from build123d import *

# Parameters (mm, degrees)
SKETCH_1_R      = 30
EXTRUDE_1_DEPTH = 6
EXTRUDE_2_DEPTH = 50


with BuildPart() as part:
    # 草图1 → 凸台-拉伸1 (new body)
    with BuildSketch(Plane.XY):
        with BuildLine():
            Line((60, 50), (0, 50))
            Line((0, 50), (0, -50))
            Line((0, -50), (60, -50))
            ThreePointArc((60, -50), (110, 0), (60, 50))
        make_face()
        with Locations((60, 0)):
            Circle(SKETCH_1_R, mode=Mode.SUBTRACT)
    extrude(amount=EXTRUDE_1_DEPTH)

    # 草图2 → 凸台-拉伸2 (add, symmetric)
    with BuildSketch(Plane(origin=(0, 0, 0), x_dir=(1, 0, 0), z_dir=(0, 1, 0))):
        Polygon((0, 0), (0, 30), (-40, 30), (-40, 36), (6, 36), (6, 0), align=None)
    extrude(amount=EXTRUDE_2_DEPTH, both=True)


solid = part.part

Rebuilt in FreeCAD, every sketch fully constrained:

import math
import FreeCAD as App
import Part
import Sketcher

V = App.Vector

doc = App.newDocument("Part")
body = doc.addObject("PartDesign::Body", "Body")

# Sketch on XY plane
sketch1 = body.newObject("Sketcher::SketchObject", "Sketch")
sketch1.AttachmentSupport = (doc.getObject("XY_Plane"), [""])
sketch1.MapMode = "FlatFace"
sketch1.addGeometry([
    Part.LineSegment(V(60, 50, 0), V(0, 50, 0)),  # 0
    Part.LineSegment(V(0, 50, 0), V(0, -50, 0)),  # 1
    Part.LineSegment(V(0, -50, 0), V(60, -50, 0)),  # 2
    Part.ArcOfCircle(Part.Circle(V(60, 0, 0), V(0, 0, 1), 50), math.radians(-90), math.radians(90)),  # 3
    Part.Circle(V(60, 0, 0), V(0, 0, 1), 30),  # 4
], False)
sketch1.addConstraint([
    Sketcher.Constraint("Coincident", 0, 2, 1, 1),
    Sketcher.Constraint("Coincident", 1, 2, 2, 1),
    Sketcher.Constraint("Tangent", 2, 2, 3, 1),
    Sketcher.Constraint("Tangent", 3, 2, 0, 1),
    Sketcher.Constraint("Horizontal", 0),
    Sketcher.Constraint("Vertical", 1),
    Sketcher.Constraint("Horizontal", 2),
    Sketcher.Constraint("Coincident", 4, 3, 3, 3),
    Sketcher.Constraint("Symmetric", 0, 2, 1, 2, -1, 1),
    Sketcher.Constraint("Diameter", 4, 60.0),
    Sketcher.Constraint("Radius", 3, 50.0),
    Sketcher.Constraint("DistanceX", 0, 2, 0, 1, 60.0),
])
pad1 = body.newObject("PartDesign::Pad", "Pad")
pad1.Profile = sketch1
pad1.Length = 6

# Sketch on XZ plane
sketch2 = body.newObject("Sketcher::SketchObject", "Sketch001")
sketch2.AttachmentSupport = (doc.getObject("XZ_Plane"), [""])
sketch2.MapMode = "FlatFace"
sketch2.addGeometry([
    Part.LineSegment(V(0, -30, 0), V(0, 0, 0)),  # 0
    Part.LineSegment(V(0, 0, 0), V(6, 0, 0)),  # 1
    Part.LineSegment(V(6, 0, 0), V(6, -36, 0)),  # 2
    Part.LineSegment(V(6, -36, 0), V(-40, -36, 0)),  # 3
    Part.LineSegment(V(-40, -36, 0), V(-40, -30, 0)),  # 4
    Part.LineSegment(V(-40, -30, 0), V(0, -30, 0)),  # 5
], False)
sketch2.addConstraint([
    Sketcher.Constraint("Coincident", 0, 2, 1, 1),
    Sketcher.Constraint("Coincident", 1, 2, 2, 1),
    Sketcher.Constraint("Coincident", 2, 2, 3, 1),
    Sketcher.Constraint("Coincident", 3, 2, 4, 1),
    Sketcher.Constraint("Coincident", 4, 2, 5, 1),
    Sketcher.Constraint("Coincident", 5, 2, 0, 1),
    Sketcher.Constraint("Vertical", 0),
    Sketcher.Constraint("Horizontal", 1),
    Sketcher.Constraint("Vertical", 2),
    Sketcher.Constraint("Horizontal", 3),
    Sketcher.Constraint("Vertical", 4),
    Sketcher.Constraint("Horizontal", 5),
    Sketcher.Constraint("Coincident", 0, 2, -1, 1),
    Sketcher.Constraint("Equal", 1, 4),
    Sketcher.Constraint("DistanceX", 1, 1, 1, 2, 6.0),
    Sketcher.Constraint("DistanceX", 3, 2, 3, 1, 46.0),
    Sketcher.Constraint("DistanceY", 0, 1, 0, 2, 30.0),
])
pad2 = body.newObject("PartDesign::Pad", "Pad001")
pad2.Profile = sketch2
pad2.Length = 100
pad2.Midplane = True

doc.recompute()
